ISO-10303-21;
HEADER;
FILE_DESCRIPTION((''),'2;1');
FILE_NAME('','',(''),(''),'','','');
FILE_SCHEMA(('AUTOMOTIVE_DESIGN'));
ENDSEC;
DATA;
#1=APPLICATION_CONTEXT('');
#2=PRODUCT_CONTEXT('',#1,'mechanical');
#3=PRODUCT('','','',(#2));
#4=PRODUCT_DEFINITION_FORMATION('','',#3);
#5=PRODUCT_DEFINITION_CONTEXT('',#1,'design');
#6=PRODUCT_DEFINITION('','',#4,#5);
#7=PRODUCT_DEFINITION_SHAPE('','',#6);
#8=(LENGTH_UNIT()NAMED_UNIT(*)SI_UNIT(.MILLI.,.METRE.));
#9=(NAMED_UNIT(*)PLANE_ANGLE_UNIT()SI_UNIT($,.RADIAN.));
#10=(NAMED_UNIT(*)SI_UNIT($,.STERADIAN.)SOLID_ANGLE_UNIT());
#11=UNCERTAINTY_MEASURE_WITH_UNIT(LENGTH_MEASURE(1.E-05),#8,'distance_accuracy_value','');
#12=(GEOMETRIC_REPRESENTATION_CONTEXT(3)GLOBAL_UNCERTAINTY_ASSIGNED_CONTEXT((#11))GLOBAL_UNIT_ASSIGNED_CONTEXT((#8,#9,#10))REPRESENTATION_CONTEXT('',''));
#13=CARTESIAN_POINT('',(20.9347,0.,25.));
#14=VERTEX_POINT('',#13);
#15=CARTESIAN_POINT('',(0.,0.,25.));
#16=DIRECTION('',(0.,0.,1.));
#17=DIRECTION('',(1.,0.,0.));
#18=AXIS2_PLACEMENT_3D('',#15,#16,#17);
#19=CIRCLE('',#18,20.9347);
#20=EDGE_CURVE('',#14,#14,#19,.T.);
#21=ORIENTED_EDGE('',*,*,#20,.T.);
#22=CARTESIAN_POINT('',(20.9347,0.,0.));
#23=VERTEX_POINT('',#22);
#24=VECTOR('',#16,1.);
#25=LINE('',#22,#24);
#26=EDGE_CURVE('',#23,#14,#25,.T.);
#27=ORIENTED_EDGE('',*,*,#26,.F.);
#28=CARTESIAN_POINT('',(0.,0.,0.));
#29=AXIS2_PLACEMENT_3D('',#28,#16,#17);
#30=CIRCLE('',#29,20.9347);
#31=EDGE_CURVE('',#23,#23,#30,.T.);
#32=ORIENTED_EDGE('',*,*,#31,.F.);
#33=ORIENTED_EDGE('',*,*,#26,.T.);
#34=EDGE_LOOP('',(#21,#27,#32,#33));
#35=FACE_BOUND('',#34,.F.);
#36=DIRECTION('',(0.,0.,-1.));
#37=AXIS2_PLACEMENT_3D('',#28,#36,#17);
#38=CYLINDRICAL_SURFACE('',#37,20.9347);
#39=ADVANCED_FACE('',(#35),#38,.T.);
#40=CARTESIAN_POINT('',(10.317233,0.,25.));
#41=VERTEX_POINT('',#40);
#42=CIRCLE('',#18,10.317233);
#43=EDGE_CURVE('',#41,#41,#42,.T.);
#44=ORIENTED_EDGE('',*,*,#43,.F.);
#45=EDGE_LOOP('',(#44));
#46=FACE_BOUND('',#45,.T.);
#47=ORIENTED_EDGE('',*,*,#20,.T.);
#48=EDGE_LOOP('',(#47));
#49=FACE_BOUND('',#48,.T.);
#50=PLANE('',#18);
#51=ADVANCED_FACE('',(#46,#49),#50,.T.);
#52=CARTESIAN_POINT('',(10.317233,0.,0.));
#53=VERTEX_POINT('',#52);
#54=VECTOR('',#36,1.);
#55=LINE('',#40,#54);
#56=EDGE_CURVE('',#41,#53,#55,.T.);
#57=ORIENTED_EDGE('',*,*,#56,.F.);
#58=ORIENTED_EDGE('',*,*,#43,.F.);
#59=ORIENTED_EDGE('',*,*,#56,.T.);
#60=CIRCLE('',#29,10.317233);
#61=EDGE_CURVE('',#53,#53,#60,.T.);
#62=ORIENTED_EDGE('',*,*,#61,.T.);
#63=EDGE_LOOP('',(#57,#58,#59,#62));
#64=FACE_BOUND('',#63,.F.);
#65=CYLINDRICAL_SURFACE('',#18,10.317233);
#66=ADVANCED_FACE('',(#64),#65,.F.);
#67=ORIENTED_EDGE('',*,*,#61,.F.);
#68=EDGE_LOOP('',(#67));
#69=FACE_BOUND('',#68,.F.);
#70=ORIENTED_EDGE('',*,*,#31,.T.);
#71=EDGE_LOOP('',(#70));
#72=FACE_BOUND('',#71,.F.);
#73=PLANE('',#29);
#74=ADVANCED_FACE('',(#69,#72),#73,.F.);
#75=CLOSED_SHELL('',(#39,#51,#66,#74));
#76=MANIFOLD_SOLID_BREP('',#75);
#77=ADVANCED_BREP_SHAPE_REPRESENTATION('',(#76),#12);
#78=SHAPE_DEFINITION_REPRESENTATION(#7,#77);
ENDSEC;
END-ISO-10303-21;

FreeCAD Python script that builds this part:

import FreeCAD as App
import Part
import Sketcher

V = App.Vector

doc = App.newDocument("Part")
params = doc.addObject("Spreadsheet::Sheet", "Params")
for row, (alias, value) in enumerate([
    ("pad1_length", "25 mm"),
    ("pad2_length", "25 mm"),
    ("pocket1_length", "25 mm"),
], start=1):
    params.set(f"A{row}", alias)
    params.set(f"B{row}", "=" + value)
    params.setAlias(f"B{row}", alias)

body = doc.addObject("PartDesign::Body", "Body")

sketch1 = body.newObject("Sketcher::SketchObject", "Sketch")
sketch1.AttachmentSupport = (doc.getObject("XY_Plane"), [""])
sketch1.MapMode = "FlatFace"
sketch1.addGeometry(Part.Circle(V(0, 0, 0), V(0, 0, 1), 20.9347), False)
sketch1.addConstraint([
    Sketcher.Constraint("Coincident", 0, 3, -1, 1),
    Sketcher.Constraint("Diameter", 0, 41.8694),
])
pad1 = body.newObject("PartDesign::Pad", "Pad")
pad1.Profile = sketch1
pad1.setExpression("Length", "Params.pad1_length")

sketch2 = body.newObject("Sketcher::SketchObject", "Sketch001")
sketch2.AttachmentSupport = (doc.getObject("XY_Plane"), [""])
sketch2.MapMode = "FlatFace"
sketch2.AttachmentOffset = App.Placement(V(0, 0, 25), App.Rotation())
sketch2.addGeometry(Part.Circle(V(0, 0, 0), V(0, 0, 1), 9.210685), False)
sketch2.addConstraint([
    Sketcher.Constraint("Coincident", 0, 3, -1, 1),
    Sketcher.Constraint("Diameter", 0, 18.42137),
])
pad2 = body.newObject("PartDesign::Pad", "Pad001")
pad2.Profile = sketch2
pad2.setExpression("Length", "Params.pad2_length")
pad2.Reversed = True

sketch3 = body.newObject("Sketcher::SketchObject", "Sketch002")
sketch3.AttachmentSupport = (doc.getObject("XY_Plane"), [""])
sketch3.MapMode = "FlatFace"
sketch3.AttachmentOffset = App.Placement(V(0, 0, 25), App.Rotation())
sketch3.addGeometry(Part.Circle(V(0, 0, 0), V(0, 0, 1), 10.317233), False)
sketch3.addConstraint([
    Sketcher.Constraint("Coincident", 0, 3, -1, 1),
    Sketcher.Constraint("Diameter", 0, 20.634466),
])
pocket1 = body.newObject("PartDesign::Pocket", "Pocket")
pocket1.Profile = sketch3
pocket1.setExpression("Length", "Params.pocket1_length")

doc.recompute()
